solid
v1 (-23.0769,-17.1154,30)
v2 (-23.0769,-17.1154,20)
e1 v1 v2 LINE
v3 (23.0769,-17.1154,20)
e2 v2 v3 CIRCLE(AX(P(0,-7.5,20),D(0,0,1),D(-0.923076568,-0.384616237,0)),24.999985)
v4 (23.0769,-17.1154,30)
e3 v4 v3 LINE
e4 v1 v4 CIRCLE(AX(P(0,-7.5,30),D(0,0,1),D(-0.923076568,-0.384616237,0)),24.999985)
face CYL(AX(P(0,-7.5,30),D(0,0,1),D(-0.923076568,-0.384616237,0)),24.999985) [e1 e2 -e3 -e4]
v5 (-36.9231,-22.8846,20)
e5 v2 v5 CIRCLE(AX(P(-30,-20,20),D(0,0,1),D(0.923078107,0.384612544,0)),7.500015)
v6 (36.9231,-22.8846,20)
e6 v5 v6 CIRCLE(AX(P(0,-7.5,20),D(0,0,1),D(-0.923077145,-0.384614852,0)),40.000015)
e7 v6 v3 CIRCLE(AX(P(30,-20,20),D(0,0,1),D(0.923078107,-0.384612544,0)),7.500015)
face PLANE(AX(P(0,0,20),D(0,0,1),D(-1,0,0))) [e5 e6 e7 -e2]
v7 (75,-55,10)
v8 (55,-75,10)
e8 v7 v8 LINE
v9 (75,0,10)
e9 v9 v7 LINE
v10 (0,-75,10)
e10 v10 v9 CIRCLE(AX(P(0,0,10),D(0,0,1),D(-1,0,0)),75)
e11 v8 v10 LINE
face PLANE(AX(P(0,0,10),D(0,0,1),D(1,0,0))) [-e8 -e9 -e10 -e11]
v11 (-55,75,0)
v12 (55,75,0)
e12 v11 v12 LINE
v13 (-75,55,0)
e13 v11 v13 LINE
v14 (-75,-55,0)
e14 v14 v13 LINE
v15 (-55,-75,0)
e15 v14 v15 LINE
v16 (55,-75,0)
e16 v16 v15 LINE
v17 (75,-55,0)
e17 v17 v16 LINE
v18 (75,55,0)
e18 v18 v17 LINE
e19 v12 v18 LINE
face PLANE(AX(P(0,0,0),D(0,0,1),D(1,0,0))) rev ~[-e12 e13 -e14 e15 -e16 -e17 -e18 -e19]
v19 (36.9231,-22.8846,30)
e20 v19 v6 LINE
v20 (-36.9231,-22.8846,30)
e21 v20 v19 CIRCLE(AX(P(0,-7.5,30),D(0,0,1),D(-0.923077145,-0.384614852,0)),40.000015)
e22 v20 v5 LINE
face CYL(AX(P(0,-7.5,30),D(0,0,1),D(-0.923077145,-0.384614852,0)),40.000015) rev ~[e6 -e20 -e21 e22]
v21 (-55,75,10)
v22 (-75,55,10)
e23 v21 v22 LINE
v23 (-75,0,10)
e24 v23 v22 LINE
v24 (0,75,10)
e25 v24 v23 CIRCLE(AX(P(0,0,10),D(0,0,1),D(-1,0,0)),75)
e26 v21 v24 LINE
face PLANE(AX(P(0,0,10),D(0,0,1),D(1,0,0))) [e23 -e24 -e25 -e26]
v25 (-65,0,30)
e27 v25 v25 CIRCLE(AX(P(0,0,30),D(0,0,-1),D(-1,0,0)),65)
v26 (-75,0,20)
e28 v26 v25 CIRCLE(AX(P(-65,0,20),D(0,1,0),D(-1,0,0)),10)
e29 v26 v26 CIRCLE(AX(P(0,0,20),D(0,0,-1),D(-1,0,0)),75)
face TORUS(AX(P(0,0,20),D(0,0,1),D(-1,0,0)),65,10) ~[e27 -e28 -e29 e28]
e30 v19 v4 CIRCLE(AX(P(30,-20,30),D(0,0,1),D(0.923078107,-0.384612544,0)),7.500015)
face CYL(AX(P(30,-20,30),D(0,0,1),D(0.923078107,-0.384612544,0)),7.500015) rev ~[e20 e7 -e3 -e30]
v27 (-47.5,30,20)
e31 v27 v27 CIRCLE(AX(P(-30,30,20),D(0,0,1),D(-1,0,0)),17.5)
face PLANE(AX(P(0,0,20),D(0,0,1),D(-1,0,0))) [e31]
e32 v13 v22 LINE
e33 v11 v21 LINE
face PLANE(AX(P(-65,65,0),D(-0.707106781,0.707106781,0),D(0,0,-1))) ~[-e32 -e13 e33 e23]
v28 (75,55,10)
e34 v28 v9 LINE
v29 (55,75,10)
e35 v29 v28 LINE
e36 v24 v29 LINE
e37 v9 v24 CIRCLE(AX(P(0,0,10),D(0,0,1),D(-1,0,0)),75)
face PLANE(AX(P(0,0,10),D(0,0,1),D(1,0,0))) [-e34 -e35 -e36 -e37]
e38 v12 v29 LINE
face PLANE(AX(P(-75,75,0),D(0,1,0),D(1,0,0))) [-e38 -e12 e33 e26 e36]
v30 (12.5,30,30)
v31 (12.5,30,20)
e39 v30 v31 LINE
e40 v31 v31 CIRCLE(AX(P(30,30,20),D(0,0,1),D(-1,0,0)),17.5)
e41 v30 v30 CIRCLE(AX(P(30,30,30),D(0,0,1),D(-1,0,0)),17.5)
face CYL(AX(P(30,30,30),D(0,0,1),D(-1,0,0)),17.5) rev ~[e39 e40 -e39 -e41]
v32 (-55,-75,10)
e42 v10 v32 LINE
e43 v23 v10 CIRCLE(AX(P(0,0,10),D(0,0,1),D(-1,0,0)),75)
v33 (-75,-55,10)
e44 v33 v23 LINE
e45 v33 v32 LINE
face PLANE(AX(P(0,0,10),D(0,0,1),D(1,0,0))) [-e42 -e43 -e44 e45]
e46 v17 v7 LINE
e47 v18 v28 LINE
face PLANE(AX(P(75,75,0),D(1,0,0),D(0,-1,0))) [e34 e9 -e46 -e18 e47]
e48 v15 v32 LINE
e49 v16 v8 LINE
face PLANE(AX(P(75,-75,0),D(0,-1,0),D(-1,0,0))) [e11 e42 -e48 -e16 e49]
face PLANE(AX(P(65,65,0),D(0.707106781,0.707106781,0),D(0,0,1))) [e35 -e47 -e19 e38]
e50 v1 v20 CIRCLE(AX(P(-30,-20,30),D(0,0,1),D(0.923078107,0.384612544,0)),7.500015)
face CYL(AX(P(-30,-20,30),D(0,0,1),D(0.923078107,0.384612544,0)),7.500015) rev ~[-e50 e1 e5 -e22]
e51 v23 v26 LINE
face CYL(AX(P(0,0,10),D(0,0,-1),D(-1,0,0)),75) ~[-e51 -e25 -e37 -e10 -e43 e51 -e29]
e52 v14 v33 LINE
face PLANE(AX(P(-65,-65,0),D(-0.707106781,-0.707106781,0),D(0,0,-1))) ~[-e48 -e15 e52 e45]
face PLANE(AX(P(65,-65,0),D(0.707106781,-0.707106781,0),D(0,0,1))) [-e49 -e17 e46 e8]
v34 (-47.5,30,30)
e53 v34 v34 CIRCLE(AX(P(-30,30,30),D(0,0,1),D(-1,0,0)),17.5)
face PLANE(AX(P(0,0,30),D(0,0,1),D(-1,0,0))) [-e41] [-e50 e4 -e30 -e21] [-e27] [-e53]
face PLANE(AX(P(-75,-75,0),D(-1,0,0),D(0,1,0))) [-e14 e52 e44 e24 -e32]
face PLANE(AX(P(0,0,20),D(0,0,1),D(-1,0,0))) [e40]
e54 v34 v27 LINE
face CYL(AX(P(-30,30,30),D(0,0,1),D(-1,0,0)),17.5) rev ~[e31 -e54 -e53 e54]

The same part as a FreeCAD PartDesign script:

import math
import FreeCAD as App
import Part
import Sketcher


def edges_at(feature, points):
    """Names of the edges that pass closest to the given points."""
    edges = feature.Shape.Edges
    near = lambda p: min(range(len(edges)), key=lambda i: edges[i].distToShape(Part.Vertex(*p))[0])
    return sorted({f"Edge{near(p) + 1}" for p in points})

doc = App.newDocument("Part")
params = doc.addObject("Spreadsheet::Sheet", "Params")
for row, (alias, value) in enumerate([
    ("sketch1_width", "150 mm"),
    ("pad1_length", "10 mm"),
    ("sketch2_diameter", "150 mm"),
    ("pad2_length", "20 mm"),
    ("sketch3_diameter", "35 mm"),
    ("sketch3_radius", "7.5 mm"),
    ("sketch3_radius2", "40 mm"),
    ("pocket1_length", "10 mm"),
    ("chamfer_size", "20 mm"),
    ("fillet_radius", "10 mm"),
], start=1):
    params.set(f"A{row}", alias)
    params.set(f"B{row}", "=" + value)
    params.setAlias(f"B{row}", alias)

body = doc.addObject("PartDesign::Body", "Body")

# Sketch on XY plane
sketch1 = doc.addObject("Sketcher::SketchObject", "Sketch")
body.addObject(sketch1)
sketch1.AttachmentSupport = (doc.XY_Plane, [""])
sketch1.MapMode = "FlatFace"
sketch1.addGeometry([
    Part.LineSegment(App.Vector(75, 75, 0), App.Vector(-75, 75, 0)),
    Part.LineSegment(App.Vector(-75, 75, 0), App.Vector(-75, -75, 0)),
    Part.LineSegment(App.Vector(-75, -75, 0), App.Vector(75, -75, 0)),
    Part.LineSegment(App.Vector(75, -75, 0), App.Vector(75, 75, 0)),
], False)
sketch1.addConstraint([
    Sketcher.Constraint("Coincident", 0, 2, 1, 1),
    Sketcher.Constraint("Coincident", 1, 2, 2, 1),
    Sketcher.Constraint("Coincident", 2, 2, 3, 1),
    Sketcher.Constraint("Coincident", 3, 2, 0, 1),
    Sketcher.Constraint("Horizontal", 0),
    Sketcher.Constraint("Vertical", 1),
    Sketcher.Constraint("Horizontal", 2),
    Sketcher.Constraint("Vertical", 3),
    Sketcher.Constraint("Symmetric", 0, 2, 2, 2, -1, 1),
    Sketcher.Constraint("Equal", 2, 1),
    Sketcher.Constraint("DistanceX", 0, 2, 0, 1, 150.0),
])
sketch1.setExpression("Constraints[10]", "Params.sketch1_width")
pad1 = doc.addObject("PartDesign::Pad", "Pad")
body.addObject(pad1)
pad1.Profile = sketch1
pad1.setExpression("Length", "Params.pad1_length")

# Sketch on XY plane
sketch2 = doc.addObject("Sketcher::SketchObject", "Sketch001")
body.addObject(sketch2)
sketch2.AttachmentSupport = (doc.XY_Plane, [""])
sketch2.MapMode = "FlatFace"
sketch2.AttachmentOffset = App.Placement(App.Vector(0, 0, 10), App.Rotation())
sketch2.addGeometry(Part.Circle(App.Vector(0, 0, 0), App.Vector(0, 0, 1), 75), False)
sketch2.addConstraint([
    Sketcher.Constraint("Coincident", 0, 3, -1, 1),
    Sketcher.Constraint("Diameter", 0, 150.0),
])
sketch2.setExpression("Constraints[1]", "Params.sketch2_diameter")
pad2 = doc.addObject("PartDesign::Pad", "Pad001")
body.addObject(pad2)
pad2.Profile = sketch2
pad2.setExpression("Length", "Params.pad2_length")

# Sketch on XY plane
sketch3 = doc.addObject("Sketcher::SketchObject", "Sketch002")
body.addObject(sketch3)
sketch3.AttachmentSupport = (doc.XY_Plane, [""])
sketch3.MapMode = "FlatFace"
sketch3.AttachmentOffset = App.Placement(App.Vector(0, 0, 30), App.Rotation())
sketch3.addGeometry([
    Part.Circle(App.Vector(30, 30, 0), App.Vector(0, 0, 1), 18),  # 0
    Part.Circle(App.Vector(-30, 30, 0), App.Vector(0, 0, 1), 18),  # 1
    Part.ArcOfCircle(Part.Circle(App.Vector(-30, -20, 0), App.Vector(0, 0, 1), 8), math.radians(23), math.radians(203)),  # 2
    Part.ArcOfCircle(Part.Circle(App.Vector(0, -8, 0), App.Vector(0, 0, 1), 40), math.radians(-157), math.radians(-23)),  # 3
    Part.ArcOfCircle(Part.Circle(App.Vector(30, -20, 0), App.Vector(0, 0, 1), 8), math.radians(-23), math.radians(157)),  # 4
    Part.ArcOfCircle(Part.Circle(App.Vector(0, -8, 0), App.Vector(0, 0, 1), 25), math.radians(-157), math.radians(-23)),  # 5
], False)
sketch3.addConstraint([
    Sketcher.Constraint("Tangent", 2, 2, 3, 1),
    Sketcher.Constraint("Tangent", 3, 2, 4, 1),
    Sketcher.Constraint("Tangent", 4, 2, 5, 2),
    Sketcher.Constraint("Tangent", 5, 1, 2, 1),
    Sketcher.Constraint("Coincident", 5, 3, 3, 3),
    Sketcher.Constraint("Equal", 0, 1),
    Sketcher.Constraint("Symmetric", 0, 3, 1, 3, -2),
    Sketcher.Constraint("Symmetric", 2, 3, 4, 3, -2),
    Sketcher.Constraint("Vertical", 1, 3, 2, 3),
    Sketcher.Constraint("Diameter", 0, 35.0),
    Sketcher.Constraint("Radius", 2, 7.5),
    Sketcher.Constraint("Radius", 3, 40.0),
    Sketcher.Constraint("DistanceX", -1, 1, 0, 3, 30.0),
    Sketcher.Constraint("DistanceY", -1, 1, 0, 3, 30.0),
    Sketcher.Constraint("DistanceY", 2, 3, -1, 1, 20.0),
])
sketch3.setExpression("Constraints[9]", "Params.sketch3_diameter")
sketch3.setExpression("Constraints[10]", "Params.sketch3_radius")
sketch3.setExpression("Constraints[11]", "Params.sketch3_radius2")
pocket1 = doc.addObject("PartDesign::Pocket", "Pocket")
body.addObject(pocket1)
pocket1.Profile = sketch3
pocket1.setExpression("Length", "Params.pocket1_length")
doc.recompute()

chamfer = doc.addObject("PartDesign::Chamfer", "Chamfer")
body.addObject(chamfer)
chamfer.Base = (pocket1, edges_at(pocket1, [
    (75, 75, 5),
    (75, -75, 5),
    (-75, -75, 5),
    (-75, 75, 5),
]))
chamfer.setExpression("Size", "Params.chamfer_size")
doc.recompute()

fillet = doc.addObject("PartDesign::Fillet", "Fillet")
body.addObject(fillet)
fillet.Base = (chamfer, edges_at(chamfer, [(69.925, 27.121, 30)]))
fillet.setExpression("Radius", "Params.fillet_radius")

doc.recompute()
